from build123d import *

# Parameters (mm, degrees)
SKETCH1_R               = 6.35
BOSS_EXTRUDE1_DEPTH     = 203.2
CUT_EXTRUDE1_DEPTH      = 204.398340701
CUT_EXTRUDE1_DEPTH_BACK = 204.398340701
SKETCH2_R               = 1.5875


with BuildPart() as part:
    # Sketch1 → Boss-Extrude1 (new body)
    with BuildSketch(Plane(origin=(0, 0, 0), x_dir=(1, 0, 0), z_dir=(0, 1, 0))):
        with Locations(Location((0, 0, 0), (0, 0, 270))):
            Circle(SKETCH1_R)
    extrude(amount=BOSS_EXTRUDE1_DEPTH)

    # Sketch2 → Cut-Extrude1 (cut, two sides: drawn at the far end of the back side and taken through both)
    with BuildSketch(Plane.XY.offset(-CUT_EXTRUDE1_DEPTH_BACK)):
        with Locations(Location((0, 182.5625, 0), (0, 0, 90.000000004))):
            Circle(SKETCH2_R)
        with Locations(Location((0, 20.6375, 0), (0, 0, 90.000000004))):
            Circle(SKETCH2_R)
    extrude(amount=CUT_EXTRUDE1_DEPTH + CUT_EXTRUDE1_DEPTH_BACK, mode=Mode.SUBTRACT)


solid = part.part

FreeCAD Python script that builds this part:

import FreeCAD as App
import Part
import Sketcher
Q = App.Units.Quantity

doc = App.newDocument("Part")
body = doc.addObject("PartDesign::Body", "Body")

# Sketch on XZ plane
sketch1 = body.newObject("Sketcher::SketchObject", "Sketch")
sketch1.AttachmentSupport = (doc.getObject("XZ_Plane"), [""])
sketch1.MapMode = "FlatFace"
sketch1.addGeometry(Part.Circle(App.Vector(0, 0, 0), App.Vector(0, 0, 1), 6), False)
sketch1.addConstraint([
    Sketcher.Constraint("Coincident", 0, 3, -1, 1),
    Sketcher.Constraint("Diameter", 0, Q("0.5 in")),
])
pad1 = body.newObject("PartDesign::Pad", "Pad")
pad1.Profile = sketch1
pad1.Length = Q("8 in")
pad1.Reversed = True

# Sketch on XY plane
sketch2 = body.newObject("Sketcher::SketchObject", "Sketch001")
sketch2.AttachmentSupport = (doc.getObject("XY_Plane"), [""])
sketch2.MapMode = "FlatFace"
sketch2.addGeometry([
    Part.Circle(App.Vector(0, 182.6, 0), App.Vector(0, 0, 1), 1.6),
    Part.Circle(App.Vector(0, 20.6, 0), App.Vector(0, 0, 1), 1.6),
], False)
sketch2.addConstraint([
    Sketcher.Constraint("Equal", 0, 1),
    Sketcher.Constraint("PointOnObject", 0, 3, -2),
    Sketcher.Constraint("PointOnObject", 1, 3, -2),
    Sketcher.Constraint("Diameter", 0, Q("0.125 in")),
    Sketcher.Constraint("DistanceY", -1, 1, 0, 3, Q("7.1875 in")),
    Sketcher.Constraint("DistanceY", -1, 1, 1, 3, Q("0.8125 in")),
])
pocket1 = body.newObject("PartDesign::Pocket", "Pocket")
pocket1.Profile = sketch2
pocket1.Type = "ThroughAll"
pocket1.Midplane = True

doc.recompute()
